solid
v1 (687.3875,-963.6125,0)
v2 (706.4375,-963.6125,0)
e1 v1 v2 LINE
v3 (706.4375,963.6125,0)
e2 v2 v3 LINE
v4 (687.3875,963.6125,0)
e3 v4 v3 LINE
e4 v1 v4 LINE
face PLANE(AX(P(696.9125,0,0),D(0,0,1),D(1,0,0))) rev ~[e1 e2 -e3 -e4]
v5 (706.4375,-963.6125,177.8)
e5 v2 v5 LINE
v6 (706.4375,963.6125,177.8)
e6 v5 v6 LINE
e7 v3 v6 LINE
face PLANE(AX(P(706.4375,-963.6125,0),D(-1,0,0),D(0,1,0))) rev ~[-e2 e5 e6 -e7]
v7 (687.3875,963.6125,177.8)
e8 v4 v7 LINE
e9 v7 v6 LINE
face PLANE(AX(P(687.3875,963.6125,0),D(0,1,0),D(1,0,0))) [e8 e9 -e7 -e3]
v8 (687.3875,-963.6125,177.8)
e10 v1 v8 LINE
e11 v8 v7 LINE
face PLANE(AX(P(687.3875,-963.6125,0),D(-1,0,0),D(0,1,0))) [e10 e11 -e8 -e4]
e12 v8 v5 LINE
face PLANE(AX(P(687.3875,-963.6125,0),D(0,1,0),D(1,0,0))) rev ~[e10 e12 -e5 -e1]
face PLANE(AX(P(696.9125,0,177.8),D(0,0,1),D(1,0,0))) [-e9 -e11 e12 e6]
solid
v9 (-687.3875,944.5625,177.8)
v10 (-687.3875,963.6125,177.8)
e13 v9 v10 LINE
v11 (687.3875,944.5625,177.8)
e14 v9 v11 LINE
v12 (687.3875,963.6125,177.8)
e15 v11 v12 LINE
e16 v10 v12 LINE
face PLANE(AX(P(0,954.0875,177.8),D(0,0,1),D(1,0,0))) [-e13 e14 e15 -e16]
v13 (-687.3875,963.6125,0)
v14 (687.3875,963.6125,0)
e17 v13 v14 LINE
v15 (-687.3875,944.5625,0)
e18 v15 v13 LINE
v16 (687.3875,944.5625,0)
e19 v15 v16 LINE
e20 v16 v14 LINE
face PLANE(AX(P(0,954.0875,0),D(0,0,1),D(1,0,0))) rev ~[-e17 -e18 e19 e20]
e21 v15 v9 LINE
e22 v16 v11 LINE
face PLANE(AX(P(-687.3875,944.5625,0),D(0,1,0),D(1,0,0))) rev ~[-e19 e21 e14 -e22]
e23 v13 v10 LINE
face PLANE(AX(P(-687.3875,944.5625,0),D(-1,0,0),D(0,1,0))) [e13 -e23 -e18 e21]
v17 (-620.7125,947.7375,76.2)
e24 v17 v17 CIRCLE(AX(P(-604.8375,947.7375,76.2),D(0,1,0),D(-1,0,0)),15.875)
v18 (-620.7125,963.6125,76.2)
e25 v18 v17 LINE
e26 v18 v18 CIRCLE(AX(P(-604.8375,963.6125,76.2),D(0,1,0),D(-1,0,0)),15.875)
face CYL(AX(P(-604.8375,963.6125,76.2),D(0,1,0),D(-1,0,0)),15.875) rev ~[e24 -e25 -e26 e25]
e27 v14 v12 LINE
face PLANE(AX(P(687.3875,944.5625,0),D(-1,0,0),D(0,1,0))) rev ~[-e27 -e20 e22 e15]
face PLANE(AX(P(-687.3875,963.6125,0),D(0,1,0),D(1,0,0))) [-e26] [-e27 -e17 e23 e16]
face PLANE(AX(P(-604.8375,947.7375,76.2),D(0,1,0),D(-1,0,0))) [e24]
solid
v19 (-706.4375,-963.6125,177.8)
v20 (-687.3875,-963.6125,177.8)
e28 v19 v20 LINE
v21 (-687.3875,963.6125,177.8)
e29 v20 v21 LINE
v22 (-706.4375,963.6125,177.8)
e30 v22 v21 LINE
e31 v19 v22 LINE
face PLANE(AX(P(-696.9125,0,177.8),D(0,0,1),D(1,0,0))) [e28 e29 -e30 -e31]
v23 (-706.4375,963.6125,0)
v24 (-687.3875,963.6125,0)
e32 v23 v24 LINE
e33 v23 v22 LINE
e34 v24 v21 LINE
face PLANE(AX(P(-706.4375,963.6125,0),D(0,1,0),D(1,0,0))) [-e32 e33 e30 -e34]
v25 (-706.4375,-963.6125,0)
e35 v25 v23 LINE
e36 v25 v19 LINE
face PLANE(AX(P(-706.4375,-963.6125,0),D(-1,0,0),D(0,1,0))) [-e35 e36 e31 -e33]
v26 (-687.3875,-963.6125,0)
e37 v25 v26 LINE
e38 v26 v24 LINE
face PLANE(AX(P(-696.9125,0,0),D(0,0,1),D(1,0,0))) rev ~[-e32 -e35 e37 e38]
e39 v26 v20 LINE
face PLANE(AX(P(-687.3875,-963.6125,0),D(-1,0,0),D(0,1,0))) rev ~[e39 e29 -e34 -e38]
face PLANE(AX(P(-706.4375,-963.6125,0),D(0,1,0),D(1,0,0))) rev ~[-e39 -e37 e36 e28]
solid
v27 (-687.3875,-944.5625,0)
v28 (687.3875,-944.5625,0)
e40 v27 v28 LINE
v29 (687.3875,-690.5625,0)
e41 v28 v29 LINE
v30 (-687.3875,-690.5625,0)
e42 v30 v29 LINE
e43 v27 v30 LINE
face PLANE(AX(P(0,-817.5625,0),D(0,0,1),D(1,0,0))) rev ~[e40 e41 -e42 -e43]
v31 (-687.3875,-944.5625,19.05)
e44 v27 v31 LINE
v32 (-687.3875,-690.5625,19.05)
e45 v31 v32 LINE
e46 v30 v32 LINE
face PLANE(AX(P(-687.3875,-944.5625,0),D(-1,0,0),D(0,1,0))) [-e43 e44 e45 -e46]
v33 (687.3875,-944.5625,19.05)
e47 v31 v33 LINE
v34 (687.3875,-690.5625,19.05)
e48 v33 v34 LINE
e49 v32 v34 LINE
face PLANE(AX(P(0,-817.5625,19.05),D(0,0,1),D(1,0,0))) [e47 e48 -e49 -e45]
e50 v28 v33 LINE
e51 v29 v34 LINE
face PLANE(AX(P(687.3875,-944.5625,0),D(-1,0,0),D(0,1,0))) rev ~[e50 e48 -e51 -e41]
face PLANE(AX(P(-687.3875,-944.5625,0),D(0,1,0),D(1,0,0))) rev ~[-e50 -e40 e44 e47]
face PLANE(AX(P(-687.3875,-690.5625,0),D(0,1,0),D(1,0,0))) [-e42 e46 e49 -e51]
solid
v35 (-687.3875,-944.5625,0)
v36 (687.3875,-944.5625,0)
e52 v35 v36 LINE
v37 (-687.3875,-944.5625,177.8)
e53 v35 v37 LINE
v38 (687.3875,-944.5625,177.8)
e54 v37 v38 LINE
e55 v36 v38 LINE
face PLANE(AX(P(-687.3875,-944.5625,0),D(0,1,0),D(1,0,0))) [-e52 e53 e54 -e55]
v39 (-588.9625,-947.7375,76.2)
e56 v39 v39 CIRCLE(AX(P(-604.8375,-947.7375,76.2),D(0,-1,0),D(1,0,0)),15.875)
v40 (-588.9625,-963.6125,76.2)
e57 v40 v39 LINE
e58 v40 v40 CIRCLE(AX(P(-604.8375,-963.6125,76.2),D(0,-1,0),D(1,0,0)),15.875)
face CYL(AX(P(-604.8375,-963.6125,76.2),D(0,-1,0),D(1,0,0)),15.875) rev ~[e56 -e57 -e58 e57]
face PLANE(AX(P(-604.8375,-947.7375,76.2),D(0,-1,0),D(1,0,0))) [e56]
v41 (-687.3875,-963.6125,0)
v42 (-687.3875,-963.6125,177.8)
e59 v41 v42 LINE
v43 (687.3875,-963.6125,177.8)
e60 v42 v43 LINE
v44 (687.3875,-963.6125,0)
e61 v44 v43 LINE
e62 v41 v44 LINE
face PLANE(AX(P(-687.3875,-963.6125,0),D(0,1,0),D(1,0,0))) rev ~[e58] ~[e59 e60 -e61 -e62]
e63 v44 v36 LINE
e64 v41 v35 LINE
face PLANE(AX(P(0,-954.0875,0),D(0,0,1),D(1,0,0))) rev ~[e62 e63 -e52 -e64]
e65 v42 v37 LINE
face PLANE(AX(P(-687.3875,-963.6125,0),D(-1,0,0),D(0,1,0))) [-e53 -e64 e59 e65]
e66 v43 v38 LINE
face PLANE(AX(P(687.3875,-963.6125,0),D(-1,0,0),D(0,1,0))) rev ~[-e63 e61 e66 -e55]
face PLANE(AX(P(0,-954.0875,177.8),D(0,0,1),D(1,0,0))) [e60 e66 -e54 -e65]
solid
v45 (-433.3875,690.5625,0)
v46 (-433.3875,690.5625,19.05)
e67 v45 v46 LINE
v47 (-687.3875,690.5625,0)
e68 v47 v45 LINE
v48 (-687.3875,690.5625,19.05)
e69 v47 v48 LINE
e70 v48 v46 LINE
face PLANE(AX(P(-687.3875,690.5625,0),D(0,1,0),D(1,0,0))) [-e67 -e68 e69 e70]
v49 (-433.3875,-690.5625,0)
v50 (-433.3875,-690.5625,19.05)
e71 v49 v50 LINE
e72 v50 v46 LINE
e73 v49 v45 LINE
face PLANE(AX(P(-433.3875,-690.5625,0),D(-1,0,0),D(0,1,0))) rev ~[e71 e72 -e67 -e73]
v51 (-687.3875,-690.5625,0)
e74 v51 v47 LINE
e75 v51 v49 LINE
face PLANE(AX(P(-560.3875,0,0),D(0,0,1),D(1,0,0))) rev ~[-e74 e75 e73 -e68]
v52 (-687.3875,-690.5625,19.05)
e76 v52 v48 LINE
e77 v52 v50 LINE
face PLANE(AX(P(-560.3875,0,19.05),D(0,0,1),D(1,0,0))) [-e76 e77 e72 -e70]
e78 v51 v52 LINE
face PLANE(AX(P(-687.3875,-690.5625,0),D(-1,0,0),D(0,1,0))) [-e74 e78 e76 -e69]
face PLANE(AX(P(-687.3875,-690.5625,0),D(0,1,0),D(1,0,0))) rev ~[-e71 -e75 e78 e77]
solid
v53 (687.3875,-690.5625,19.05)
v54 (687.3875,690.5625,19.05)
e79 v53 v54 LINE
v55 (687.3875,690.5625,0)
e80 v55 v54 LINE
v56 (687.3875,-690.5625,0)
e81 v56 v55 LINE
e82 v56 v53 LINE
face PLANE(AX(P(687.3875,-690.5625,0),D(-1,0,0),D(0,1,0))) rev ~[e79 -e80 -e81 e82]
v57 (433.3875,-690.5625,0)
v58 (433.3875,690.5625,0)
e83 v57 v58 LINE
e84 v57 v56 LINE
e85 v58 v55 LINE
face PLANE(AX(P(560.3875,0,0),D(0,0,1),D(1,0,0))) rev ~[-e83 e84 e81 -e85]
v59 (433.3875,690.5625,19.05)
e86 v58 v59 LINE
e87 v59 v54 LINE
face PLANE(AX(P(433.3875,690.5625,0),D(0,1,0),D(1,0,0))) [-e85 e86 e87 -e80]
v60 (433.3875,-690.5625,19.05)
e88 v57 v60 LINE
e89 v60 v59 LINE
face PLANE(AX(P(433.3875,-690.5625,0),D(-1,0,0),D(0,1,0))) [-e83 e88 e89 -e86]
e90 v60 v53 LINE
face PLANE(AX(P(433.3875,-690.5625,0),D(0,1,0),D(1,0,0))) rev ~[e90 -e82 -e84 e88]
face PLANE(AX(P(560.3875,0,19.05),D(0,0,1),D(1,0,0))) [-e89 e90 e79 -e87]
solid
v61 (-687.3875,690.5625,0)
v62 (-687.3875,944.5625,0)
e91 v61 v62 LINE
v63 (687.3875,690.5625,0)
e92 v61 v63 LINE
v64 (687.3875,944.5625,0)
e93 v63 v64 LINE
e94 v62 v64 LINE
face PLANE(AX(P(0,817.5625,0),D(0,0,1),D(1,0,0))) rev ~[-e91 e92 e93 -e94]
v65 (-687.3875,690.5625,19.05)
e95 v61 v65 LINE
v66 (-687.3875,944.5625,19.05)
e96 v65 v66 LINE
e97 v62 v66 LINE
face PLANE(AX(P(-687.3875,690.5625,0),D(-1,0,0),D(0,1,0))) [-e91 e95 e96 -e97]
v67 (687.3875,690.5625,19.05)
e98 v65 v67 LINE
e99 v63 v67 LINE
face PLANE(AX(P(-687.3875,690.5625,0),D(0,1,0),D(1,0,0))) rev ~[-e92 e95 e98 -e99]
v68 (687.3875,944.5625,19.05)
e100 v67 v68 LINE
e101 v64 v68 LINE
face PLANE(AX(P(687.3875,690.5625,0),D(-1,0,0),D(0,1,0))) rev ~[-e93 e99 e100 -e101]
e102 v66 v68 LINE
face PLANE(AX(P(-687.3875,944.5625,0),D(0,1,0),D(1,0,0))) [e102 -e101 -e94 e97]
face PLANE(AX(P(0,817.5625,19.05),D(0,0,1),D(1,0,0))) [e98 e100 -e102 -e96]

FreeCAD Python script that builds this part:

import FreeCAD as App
import Part
import Sketcher
Q = App.Units.Quantity


def add_polygon(sketch, points):
    """Adds a closed chain of lines whose ends are joined by coincident constraints."""
    first, n = sketch.GeometryCount, len(points)
    for a, b in zip(points, points[1:] + points[:1]):
        sketch.addGeometry(Part.LineSegment(App.Vector(*a, 0), App.Vector(*b, 0)), False)
    for i in range(n):
        sketch.addConstraint(Sketcher.Constraint("Coincident", first + i, 2, first + (i + 1) % n, 1))

doc = App.newDocument("Part")
params = doc.addObject("Spreadsheet::Sheet", "Params")
for row, (alias, value) in enumerate([
    ("sketch1_height", "10 in"),
    ("sketch1_width", "54.125 in"),
    ("pad1_length", "0.75 in"),
    ("sketch2_width", "10 in"),
    ("sketch2_height", "54.375 in"),
    ("pad2_length", "0.75 in"),
    ("sketch3_width", "0.75 in"),
    ("sketch3_height", "75.875 in"),
    ("pad3_length", "7 in"),
    ("sketch4_height", "0.75 in"),
    ("sketch4_width", "54.125 in"),
    ("pad4_length", "7 in"),
    ("sketch5_diameter", "1.25 in"),
    ("pocket1_length", "0.625 in"),
    ("sketch6_diameter", "1.25 in"),
    ("pocket2_length", "0.625 in"),
], start=1):
    params.set(f"A{row}", alias)
    params.set(f"B{row}", "=" + value)
    params.setAlias(f"B{row}", alias)

body = doc.addObject("PartDesign::Body", "Body")
body.AllowCompound = True

# Sketch on XY plane
sketch1 = body.newObject("Sketcher::SketchObject", "Sketch")
sketch1.AttachmentSupport = (doc.getObject("XY_Plane"), [""])
sketch1.MapMode = "FlatFace"
add_polygon(sketch1, [(-687, -691), (-687, -945), (687, -945), (687, -691)])  # lines 0-3
add_polygon(sketch1, [(-687, 945), (-687, 691), (687, 691), (687, 945)])  # lines 4-7
sketch1.addConstraint([
    Sketcher.Constraint("Vertical", 0),
    Sketcher.Constraint("Horizontal", 1),
    Sketcher.Constraint("Vertical", 2),
    Sketcher.Constraint("Horizontal", 3),
    Sketcher.Constraint("Vertical", 4),
    Sketcher.Constraint("Horizontal", 5),
    Sketcher.Constraint("Vertical", 6),
    Sketcher.Constraint("Horizontal", 7),
    Sketcher.Constraint("Symmetric", 2, 2, 4, 2, -1, 1),
    Sketcher.Constraint("Symmetric", 0, 2, 6, 2, -1, 1),
    Sketcher.Constraint("Vertical", 3, 2, 4, 2),
    Sketcher.Constraint("DistanceY", 0, 2, 0, 1, Q("10 in")),
    Sketcher.Constraint("DistanceX", 1, 1, 1, 2, Q("54.125 in")),
    Sketcher.Constraint("DistanceY", 0, 2, -1, 1, Q("37.1875 in")),
])
sketch1.setExpression("Constraints[19]", "Params.sketch1_height")
sketch1.setExpression("Constraints[20]", "Params.sketch1_width")
pad1 = body.newObject("PartDesign::Pad", "Pad")
pad1.Profile = sketch1
pad1.setExpression("Length", "Params.pad1_length")
body2 = doc.addObject("PartDesign::Body", "Body001")
body2.AllowCompound = True

# Sketch on XY plane
sketch2 = body2.newObject("Sketcher::SketchObject", "Sketch001")
sketch2.AttachmentSupport = (doc.getObject("XY_Plane001"), [""])
sketch2.MapMode = "FlatFace"
add_polygon(sketch2, [(-687, 691), (-687, -691), (-433, -691), (-433, 691)])  # lines 0-3
add_polygon(sketch2, [(433, 691), (433, -691), (687, -691), (687, 691)])  # lines 4-7
sketch2.addConstraint([
    Sketcher.Constraint("Vertical", 0),
    Sketcher.Constraint("Horizontal", 1),
    Sketcher.Constraint("Vertical", 2),
    Sketcher.Constraint("Horizontal", 3),
    Sketcher.Constraint("Vertical", 4),
    Sketcher.Constraint("Horizontal", 5),
    Sketcher.Constraint("Vertical", 6),
    Sketcher.Constraint("Horizontal", 7),
    Sketcher.Constraint("Symmetric", 2, 2, 4, 2, -1, 1),
    Sketcher.Constraint("Symmetric", 0, 2, 6, 2, -1, 1),
    Sketcher.Constraint("Horizontal", 1, 2, 4, 2),
    Sketcher.Constraint("DistanceX", 1, 1, 1, 2, Q("10 in")),
    Sketcher.Constraint("DistanceY", 0, 2, 0, 1, Q("54.375 in")),
    Sketcher.Constraint("DistanceX", 0, 2, -1, 1, Q("27.0625 in")),
])
sketch2.setExpression("Constraints[19]", "Params.sketch2_width")
sketch2.setExpression("Constraints[20]", "Params.sketch2_height")
pad2 = body2.newObject("PartDesign::Pad", "Pad001")
pad2.Profile = sketch2
pad2.setExpression("Length", "Params.pad2_length")
body3 = doc.addObject("PartDesign::Body", "Body002")
body3.AllowCompound = True

# Sketch on XY plane
sketch3 = body3.newObject("Sketcher::SketchObject", "Sketch002")
sketch3.AttachmentSupport = (doc.getObject("XY_Plane002"), [""])
sketch3.MapMode = "FlatFace"
add_polygon(sketch3, [(-706, 964), (-706, -964), (-687, -964), (-687, 964)])  # lines 0-3
add_polygon(sketch3, [(687, 964), (687, -964), (706, -964), (706, 964)])  # lines 4-7
sketch3.addConstraint([
    Sketcher.Constraint("Vertical", 0),
    Sketcher.Constraint("Horizontal", 1),
    Sketcher.Constraint("Vertical", 2),
    Sketcher.Constraint("Horizontal", 3),
    Sketcher.Constraint("Vertical", 4),
    Sketcher.Constraint("Horizontal", 5),
    Sketcher.Constraint("Vertical", 6),
    Sketcher.Constraint("Horizontal", 7),
    Sketcher.Constraint("Symmetric", 2, 2, 4, 2, -1, 1),
    Sketcher.Constraint("Symmetric", 0, 2, 6, 2, -1, 1),
    Sketcher.Constraint("Horizontal", 1, 2, 4, 2),
    Sketcher.Constraint("DistanceX", 1, 1, 1, 2, Q("0.75 in")),
    Sketcher.Constraint("DistanceY", 0, 2, 0, 1, Q("75.875 in")),
    Sketcher.Constraint("DistanceX", 0, 2, -1, 1, Q("27.8125 in")),
])
sketch3.setExpression("Constraints[19]", "Params.sketch3_width")
sketch3.setExpression("Constraints[20]", "Params.sketch3_height")
pad3 = body3.newObject("PartDesign::Pad", "Pad002")
pad3.Profile = sketch3
pad3.setExpression("Length", "Params.pad3_length")
body4 = doc.addObject("PartDesign::Body", "Body003")
body4.AllowCompound = True

# Sketch on XY plane
sketch4 = body4.newObject("Sketcher::SketchObject", "Sketch003")
sketch4.AttachmentSupport = (doc.getObject("XY_Plane003"), [""])
sketch4.MapMode = "FlatFace"
add_polygon(sketch4, [(-687, -945), (-687, -964), (687, -964), (687, -945)])  # lines 0-3
add_polygon(sketch4, [(-687, 964), (-687, 945), (687, 945), (687, 964)])  # lines 4-7
sketch4.addConstraint([
    Sketcher.Constraint("Vertical", 0),
    Sketcher.Constraint("Horizontal", 1),
    Sketcher.Constraint("Vertical", 2),
    Sketcher.Constraint("Horizontal", 3),
    Sketcher.Constraint("Vertical", 4),
    Sketcher.Constraint("Horizontal", 5),
    Sketcher.Constraint("Vertical", 6),
    Sketcher.Constraint("Horizontal", 7),
    Sketcher.Constraint("Symmetric", 2, 2, 4, 2, -1, 1),
    Sketcher.Constraint("Symmetric", 0, 2, 6, 2, -1, 1),
    Sketcher.Constraint("Vertical", 3, 2, 4, 2),
    Sketcher.Constraint("DistanceY", 0, 2, 0, 1, Q("0.75 in")),
    Sketcher.Constraint("DistanceX", 1, 1, 1, 2, Q("54.125 in")),
    Sketcher.Constraint("DistanceY", 0, 2, -1, 1, Q("37.9375 in")),
])
sketch4.setExpression("Constraints[19]", "Params.sketch4_height")
sketch4.setExpression("Constraints[20]", "Params.sketch4_width")
pad4 = body4.newObject("PartDesign::Pad", "Pad003")
pad4.Profile = sketch4
pad4.setExpression("Length", "Params.pad4_length")

# Sketch on XZ plane
sketch5 = body4.newObject("Sketcher::SketchObject", "Sketch004")
sketch5.AttachmentSupport = (doc.getObject("XZ_Plane003"), [""])
sketch5.MapMode = "FlatFace"
sketch5.AttachmentOffset = App.Placement(App.Vector(0, 0, 37.9375 * 25.4), App.Rotation())
sketch5.addGeometry(Part.Circle(App.Vector(-605, 76, 0), App.Vector(0, 0, 1), 16), False)
sketch5.addConstraint([
    Sketcher.Constraint("Diameter", 0, Q("1.25 in")),
    Sketcher.Constraint("DistanceY", -1, 1, 0, 3, Q("3 in")),
    Sketcher.Constraint("DistanceX", 0, 3, -1, 1, Q("23.8125 in")),
])
sketch5.setExpression("Constraints[0]", "Params.sketch5_diameter")
pocket1 = body4.newObject("PartDesign::Pocket", "Pocket")
pocket1.Profile = sketch5
pocket1.setExpression("Length", "Params.pocket1_length")

# Sketch on XZ plane
sketch6 = body4.newObject("Sketcher::SketchObject", "Sketch005")
sketch6.AttachmentSupport = (doc.getObject("XZ_Plane003"), [""])
sketch6.MapMode = "FlatFace"
sketch6.AttachmentOffset = App.Placement(App.Vector(0, 0, -37.9375 * 25.4), App.Rotation())
sketch6.addGeometry(Part.Circle(App.Vector(-605, 76, 0), App.Vector(0, 0, 1), 16), False)
sketch6.addConstraint([
    Sketcher.Constraint("Diameter", 0, Q("1.25 in")),
    Sketcher.Constraint("DistanceY", -1, 1, 0, 3, Q("3 in")),
    Sketcher.Constraint("DistanceX", 0, 3, -1, 1, Q("23.8125 in")),
])
sketch6.setExpression("Constraints[0]", "Params.sketch6_diameter")
pocket2 = body4.newObject("PartDesign::Pocket", "Pocket001")
pocket2.Profile = sketch6
pocket2.setExpression("Length", "Params.pocket2_length")
pocket2.Reversed = True

doc.recompute()
